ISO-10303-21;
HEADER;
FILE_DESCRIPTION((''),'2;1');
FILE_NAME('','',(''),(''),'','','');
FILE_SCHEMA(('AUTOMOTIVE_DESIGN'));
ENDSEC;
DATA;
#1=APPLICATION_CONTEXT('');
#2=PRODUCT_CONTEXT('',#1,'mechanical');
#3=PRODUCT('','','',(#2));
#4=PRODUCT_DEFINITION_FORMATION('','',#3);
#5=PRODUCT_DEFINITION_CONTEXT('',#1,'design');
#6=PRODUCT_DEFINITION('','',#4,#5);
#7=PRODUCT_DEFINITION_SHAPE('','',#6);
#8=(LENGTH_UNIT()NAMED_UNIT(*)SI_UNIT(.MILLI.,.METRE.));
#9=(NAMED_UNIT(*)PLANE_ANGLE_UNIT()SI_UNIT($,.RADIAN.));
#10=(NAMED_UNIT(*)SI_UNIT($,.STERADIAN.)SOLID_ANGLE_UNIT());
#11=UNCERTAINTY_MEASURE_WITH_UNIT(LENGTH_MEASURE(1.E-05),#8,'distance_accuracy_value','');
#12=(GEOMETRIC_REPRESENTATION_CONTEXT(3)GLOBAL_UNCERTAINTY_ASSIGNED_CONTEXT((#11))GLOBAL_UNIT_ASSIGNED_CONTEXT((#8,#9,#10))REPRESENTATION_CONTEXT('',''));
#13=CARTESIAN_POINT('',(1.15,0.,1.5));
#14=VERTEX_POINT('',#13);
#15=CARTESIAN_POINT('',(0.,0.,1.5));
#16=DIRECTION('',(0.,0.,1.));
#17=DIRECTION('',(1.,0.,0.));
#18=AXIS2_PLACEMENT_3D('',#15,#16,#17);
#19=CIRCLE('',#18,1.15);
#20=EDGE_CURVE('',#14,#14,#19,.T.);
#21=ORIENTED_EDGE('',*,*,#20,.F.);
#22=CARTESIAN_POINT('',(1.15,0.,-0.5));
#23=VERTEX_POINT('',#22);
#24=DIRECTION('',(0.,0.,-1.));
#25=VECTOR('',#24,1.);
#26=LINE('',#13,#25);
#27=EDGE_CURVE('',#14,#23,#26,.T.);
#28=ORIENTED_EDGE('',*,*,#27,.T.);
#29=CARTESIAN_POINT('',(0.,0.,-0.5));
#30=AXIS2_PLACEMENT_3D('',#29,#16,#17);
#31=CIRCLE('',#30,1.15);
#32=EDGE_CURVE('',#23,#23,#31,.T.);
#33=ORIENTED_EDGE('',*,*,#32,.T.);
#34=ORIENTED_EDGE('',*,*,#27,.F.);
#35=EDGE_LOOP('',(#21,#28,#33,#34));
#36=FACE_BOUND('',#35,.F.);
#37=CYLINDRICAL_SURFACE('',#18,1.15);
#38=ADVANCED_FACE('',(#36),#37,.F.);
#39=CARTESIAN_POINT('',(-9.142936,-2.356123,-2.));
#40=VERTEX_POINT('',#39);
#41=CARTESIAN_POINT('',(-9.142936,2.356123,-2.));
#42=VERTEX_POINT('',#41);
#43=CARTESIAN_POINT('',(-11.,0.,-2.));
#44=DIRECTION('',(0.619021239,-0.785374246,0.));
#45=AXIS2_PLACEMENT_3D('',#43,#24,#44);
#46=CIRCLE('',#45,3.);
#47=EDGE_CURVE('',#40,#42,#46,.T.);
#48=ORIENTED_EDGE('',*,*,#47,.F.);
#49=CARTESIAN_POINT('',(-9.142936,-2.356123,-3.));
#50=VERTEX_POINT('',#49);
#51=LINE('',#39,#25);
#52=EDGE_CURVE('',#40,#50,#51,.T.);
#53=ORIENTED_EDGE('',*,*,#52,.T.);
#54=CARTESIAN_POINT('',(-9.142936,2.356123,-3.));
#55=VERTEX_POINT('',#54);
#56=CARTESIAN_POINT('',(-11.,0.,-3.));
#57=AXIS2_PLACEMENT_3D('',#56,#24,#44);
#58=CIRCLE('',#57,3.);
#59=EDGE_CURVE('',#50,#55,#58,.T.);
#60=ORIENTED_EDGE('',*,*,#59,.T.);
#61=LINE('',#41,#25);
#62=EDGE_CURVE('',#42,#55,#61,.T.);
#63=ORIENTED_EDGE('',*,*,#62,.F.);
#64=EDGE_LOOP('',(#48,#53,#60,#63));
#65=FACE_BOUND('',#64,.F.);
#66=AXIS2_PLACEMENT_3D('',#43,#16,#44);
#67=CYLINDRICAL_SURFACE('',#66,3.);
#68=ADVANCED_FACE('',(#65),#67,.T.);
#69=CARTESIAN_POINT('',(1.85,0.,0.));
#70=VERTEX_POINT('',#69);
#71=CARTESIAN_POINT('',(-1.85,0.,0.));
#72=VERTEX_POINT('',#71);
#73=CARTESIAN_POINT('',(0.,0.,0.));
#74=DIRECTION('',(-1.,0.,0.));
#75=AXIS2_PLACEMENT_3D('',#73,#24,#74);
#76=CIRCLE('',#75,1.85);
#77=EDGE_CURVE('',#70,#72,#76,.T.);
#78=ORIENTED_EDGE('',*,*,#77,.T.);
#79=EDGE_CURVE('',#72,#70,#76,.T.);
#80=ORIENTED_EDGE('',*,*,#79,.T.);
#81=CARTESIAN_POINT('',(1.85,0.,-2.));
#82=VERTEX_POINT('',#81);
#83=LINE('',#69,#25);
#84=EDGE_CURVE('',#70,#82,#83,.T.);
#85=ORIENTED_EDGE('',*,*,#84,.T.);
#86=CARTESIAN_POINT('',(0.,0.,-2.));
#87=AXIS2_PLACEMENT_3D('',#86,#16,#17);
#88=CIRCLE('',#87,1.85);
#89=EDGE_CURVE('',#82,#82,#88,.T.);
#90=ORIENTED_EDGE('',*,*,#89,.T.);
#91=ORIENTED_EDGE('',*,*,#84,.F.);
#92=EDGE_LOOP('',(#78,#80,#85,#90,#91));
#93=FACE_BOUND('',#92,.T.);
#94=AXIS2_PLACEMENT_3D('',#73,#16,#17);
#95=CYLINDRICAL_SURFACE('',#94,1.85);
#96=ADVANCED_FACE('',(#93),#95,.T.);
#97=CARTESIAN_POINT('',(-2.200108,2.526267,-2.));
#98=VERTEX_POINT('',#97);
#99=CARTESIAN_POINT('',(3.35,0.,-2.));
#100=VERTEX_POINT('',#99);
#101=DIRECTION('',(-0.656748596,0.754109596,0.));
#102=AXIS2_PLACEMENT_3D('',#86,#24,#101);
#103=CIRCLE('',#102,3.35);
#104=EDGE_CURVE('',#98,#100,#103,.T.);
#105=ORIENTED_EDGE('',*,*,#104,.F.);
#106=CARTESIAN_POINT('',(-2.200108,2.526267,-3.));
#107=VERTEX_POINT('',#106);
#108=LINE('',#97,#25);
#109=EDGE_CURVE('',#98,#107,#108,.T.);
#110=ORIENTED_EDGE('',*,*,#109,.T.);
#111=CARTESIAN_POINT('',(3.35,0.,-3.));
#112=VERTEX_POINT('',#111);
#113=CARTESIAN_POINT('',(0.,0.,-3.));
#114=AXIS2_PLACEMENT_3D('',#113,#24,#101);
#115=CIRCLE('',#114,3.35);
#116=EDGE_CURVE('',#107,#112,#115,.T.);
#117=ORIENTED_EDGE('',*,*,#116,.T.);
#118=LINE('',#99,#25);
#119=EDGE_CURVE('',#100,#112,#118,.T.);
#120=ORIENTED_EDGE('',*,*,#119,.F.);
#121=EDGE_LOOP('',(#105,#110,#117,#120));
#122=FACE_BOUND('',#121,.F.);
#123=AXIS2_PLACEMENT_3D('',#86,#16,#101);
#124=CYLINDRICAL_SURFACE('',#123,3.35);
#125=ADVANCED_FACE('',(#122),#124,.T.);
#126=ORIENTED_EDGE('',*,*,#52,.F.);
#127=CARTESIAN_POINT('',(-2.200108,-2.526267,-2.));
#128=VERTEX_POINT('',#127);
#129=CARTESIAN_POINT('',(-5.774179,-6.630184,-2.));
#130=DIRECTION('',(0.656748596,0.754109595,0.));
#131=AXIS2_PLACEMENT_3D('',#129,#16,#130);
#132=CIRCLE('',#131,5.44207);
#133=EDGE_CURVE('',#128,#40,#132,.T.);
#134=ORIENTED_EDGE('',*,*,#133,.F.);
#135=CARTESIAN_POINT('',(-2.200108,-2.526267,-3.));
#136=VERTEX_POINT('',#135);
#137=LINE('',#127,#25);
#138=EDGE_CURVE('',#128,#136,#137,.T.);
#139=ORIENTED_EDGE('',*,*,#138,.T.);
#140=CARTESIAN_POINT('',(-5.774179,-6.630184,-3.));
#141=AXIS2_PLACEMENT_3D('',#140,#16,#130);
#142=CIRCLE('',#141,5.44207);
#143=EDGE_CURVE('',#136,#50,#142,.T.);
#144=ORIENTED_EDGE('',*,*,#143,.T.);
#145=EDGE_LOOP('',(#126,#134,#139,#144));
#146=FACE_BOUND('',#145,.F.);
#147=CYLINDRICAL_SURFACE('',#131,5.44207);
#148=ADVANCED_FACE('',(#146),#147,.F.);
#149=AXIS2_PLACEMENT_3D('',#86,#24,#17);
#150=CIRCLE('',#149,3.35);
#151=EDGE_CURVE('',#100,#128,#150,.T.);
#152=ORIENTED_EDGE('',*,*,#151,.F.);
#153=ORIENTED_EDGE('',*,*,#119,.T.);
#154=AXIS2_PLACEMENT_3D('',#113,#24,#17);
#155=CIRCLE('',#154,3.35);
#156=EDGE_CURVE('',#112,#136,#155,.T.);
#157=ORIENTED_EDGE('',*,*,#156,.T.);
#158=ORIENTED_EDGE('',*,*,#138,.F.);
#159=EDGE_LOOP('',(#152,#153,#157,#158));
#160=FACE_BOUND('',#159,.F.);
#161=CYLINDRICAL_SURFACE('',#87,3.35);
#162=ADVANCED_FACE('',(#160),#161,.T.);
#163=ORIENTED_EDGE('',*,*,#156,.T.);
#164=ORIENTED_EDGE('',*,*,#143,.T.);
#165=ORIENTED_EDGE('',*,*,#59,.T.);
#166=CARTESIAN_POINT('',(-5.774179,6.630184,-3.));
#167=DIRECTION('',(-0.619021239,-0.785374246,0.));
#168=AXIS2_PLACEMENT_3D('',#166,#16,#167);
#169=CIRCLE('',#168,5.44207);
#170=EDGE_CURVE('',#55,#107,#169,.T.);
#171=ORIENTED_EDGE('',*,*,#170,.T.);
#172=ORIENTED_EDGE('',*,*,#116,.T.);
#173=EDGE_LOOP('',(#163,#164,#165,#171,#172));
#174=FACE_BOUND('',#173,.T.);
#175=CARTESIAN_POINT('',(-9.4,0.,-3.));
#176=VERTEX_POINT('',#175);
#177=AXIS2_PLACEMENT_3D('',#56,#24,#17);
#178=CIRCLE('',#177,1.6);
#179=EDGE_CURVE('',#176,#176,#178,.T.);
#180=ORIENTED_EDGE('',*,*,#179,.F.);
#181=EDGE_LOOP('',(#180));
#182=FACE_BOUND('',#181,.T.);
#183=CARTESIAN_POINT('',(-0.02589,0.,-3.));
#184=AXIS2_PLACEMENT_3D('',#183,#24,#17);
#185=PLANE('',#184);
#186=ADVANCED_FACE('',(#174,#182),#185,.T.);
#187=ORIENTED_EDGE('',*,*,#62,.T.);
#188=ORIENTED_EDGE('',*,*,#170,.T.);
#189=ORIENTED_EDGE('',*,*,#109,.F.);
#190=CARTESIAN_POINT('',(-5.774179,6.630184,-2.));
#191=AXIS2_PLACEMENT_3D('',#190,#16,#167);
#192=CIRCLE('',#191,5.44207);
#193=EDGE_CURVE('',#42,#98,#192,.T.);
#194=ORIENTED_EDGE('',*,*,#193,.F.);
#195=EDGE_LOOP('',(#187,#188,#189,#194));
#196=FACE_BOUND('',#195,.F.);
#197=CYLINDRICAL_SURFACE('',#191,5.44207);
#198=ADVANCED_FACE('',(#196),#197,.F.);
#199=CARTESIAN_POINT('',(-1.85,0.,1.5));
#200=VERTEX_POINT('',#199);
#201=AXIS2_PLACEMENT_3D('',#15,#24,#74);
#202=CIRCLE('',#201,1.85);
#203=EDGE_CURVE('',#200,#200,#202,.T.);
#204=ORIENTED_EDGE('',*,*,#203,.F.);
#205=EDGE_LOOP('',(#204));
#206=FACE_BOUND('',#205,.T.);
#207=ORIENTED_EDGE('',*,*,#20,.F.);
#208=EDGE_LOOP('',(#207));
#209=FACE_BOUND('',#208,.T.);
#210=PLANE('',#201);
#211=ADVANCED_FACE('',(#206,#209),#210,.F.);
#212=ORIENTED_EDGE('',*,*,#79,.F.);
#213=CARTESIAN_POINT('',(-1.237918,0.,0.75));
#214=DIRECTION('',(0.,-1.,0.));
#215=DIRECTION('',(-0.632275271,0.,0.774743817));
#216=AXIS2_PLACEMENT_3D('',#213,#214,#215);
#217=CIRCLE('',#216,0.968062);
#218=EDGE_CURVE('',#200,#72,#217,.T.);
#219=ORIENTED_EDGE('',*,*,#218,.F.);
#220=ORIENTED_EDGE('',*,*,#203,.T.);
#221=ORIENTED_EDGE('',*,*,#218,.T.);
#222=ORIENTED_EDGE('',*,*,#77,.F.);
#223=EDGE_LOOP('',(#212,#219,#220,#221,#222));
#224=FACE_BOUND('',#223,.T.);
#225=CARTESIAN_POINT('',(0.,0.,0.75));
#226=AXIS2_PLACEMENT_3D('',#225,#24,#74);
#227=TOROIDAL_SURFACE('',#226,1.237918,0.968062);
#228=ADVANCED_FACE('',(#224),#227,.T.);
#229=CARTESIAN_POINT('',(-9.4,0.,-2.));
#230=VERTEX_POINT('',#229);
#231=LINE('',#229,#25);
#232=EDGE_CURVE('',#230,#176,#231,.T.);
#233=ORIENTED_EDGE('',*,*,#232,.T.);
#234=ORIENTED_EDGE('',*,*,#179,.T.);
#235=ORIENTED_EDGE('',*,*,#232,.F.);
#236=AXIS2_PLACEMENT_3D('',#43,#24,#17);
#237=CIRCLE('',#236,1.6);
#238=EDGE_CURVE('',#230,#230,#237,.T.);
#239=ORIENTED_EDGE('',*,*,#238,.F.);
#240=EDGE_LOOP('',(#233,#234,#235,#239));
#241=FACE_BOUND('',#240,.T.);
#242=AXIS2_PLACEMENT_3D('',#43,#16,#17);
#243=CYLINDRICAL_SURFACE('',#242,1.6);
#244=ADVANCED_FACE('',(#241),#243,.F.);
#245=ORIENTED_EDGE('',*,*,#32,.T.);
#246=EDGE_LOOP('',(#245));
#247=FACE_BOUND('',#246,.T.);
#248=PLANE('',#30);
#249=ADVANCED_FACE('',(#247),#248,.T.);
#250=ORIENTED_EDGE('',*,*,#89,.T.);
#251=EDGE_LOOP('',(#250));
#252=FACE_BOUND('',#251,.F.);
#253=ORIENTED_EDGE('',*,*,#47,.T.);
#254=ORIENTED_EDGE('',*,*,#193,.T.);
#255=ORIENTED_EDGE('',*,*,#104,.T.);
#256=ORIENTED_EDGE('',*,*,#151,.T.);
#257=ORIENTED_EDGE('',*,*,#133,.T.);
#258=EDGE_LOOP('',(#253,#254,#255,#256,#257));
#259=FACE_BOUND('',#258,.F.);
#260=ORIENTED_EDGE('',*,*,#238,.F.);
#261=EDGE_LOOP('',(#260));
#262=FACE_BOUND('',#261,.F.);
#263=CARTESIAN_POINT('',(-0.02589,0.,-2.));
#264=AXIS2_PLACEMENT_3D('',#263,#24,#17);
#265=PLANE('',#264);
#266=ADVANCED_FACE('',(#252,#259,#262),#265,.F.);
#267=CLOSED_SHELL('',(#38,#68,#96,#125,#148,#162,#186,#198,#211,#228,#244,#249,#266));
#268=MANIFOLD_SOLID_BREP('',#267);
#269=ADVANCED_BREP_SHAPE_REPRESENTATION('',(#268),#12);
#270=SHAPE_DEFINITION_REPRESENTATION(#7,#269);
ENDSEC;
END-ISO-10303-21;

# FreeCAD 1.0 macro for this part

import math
import FreeCAD as App
import Part
import Sketcher

doc = App.newDocument("Part")
body = doc.addObject("PartDesign::Body", "Body")

# Sketch on XZ plane
sketch1 = body.newObject("Sketcher::SketchObject", "Sketch")
sketch1.AttachmentSupport = (doc.getObject("XZ_Plane"), [""])
sketch1.MapMode = "FlatFace"
sketch1.addGeometry([
    Part.LineSegment(App.Vector(0, 0, 0), App.Vector(0, 1.5, 0)),
    Part.LineSegment(App.Vector(0, 1.5, 0), App.Vector(-1.9, 1.5, 0)),
    Part.ArcOfCircle(Part.Circle(App.Vector(-1.2, 0.8, 0), App.Vector(0, 0, 1), 1), math.radians(129), math.radians(231)),
    Part.LineSegment(App.Vector(-1.9, 0, 0), App.Vector(0, 0, 0)),
], False)
sketch1.addConstraint([
    Sketcher.Constraint("Coincident", 0, 2, 1, 1),
    Sketcher.Constraint("Coincident", 1, 2, 2, 1),
    Sketcher.Constraint("Coincident", 2, 2, 3, 1),
    Sketcher.Constraint("Coincident", 3, 2, 0, 1),
    Sketcher.Constraint("Vertical", 0),
    Sketcher.Constraint("Horizontal", 1),
    Sketcher.Constraint("Horizontal", 3),
    Sketcher.Constraint("Coincident", 3, 2, -1, 1),
    Sketcher.Constraint("Vertical", 1, 2, 2, 2),
    Sketcher.Constraint("DistanceY", 0, 1, 0, 2, 1.5),
    Sketcher.Constraint("DistanceX", 1, 2, 1, 1, 1.85),
    Sketcher.Constraint("Radius", 2, 0.968062),
])
revolution = body.newObject("PartDesign::Revolution", "Revolution")
revolution.Profile = sketch1
revolution.ReferenceAxis = (sketch1, ["V_Axis"])
revolution.Angle = 360

# Sketch on XY plane
sketch2 = body.newObject("Sketcher::SketchObject", "Sketch001")
sketch2.AttachmentSupport = (doc.getObject("XY_Plane"), [""])
sketch2.MapMode = "FlatFace"
sketch2.addGeometry(Part.Circle(App.Vector(0, 0, 0), App.Vector(0, 0, 1), 1.9), False)
sketch2.addConstraint([
    Sketcher.Constraint("Coincident", 0, 3, -1, 1),
    Sketcher.Constraint("Diameter", 0, 3.7),
])
pad1 = body.newObject("PartDesign::Pad", "Pad")
pad1.Profile = sketch2
pad1.Length = 2
pad1.Reversed = True

# Sketch on XY plane
sketch3 = body.newObject("Sketcher::SketchObject", "Sketch002")
sketch3.AttachmentSupport = (doc.getObject("XY_Plane"), [""])
sketch3.MapMode = "FlatFace"
sketch3.AttachmentOffset = App.Placement(App.Vector(0, 0, -2), App.Rotation())
sketch3.addGeometry([
    Part.ArcOfCircle(Part.Circle(App.Vector(0, 0, 0), App.Vector(0, 0, 1), 3.4), math.radians(0), math.radians(131)),  # 0
    Part.ArcOfCircle(Part.Circle(App.Vector(0, 0, 0), App.Vector(0, 0, 1), 3.4), math.radians(-131), math.radians(0)),  # 1
    Part.ArcOfCircle(Part.Circle(App.Vector(-5.8, -6.6, 0), App.Vector(0, 0, 1), 5.4), math.radians(49), math.radians(128)),  # 2
    Part.ArcOfCircle(Part.Circle(App.Vector(-11, 0, 0), App.Vector(0, 0, 1), 3), math.radians(52), math.radians(308)),  # 3
    Part.ArcOfCircle(Part.Circle(App.Vector(-5.8, 6.6, 0), App.Vector(0, 0, 1), 5.4), math.radians(-128), math.radians(-49)),  # 4
    Part.Circle(App.Vector(-11, 0, 0), App.Vector(0, 0, 1), 1.6),  # 5
], False)
sketch3.addConstraint([
    Sketcher.Constraint("Tangent", 0, 1, 1, 2),
    Sketcher.Constraint("Tangent", 1, 1, 2, 1),
    Sketcher.Constraint("Tangent", 2, 2, 3, 2),
    Sketcher.Constraint("Tangent", 3, 1, 4, 1),
    Sketcher.Constraint("Tangent", 4, 2, 0, 2),
    Sketcher.Constraint("Coincident", 0, 3, -1, 1),
    Sketcher.Constraint("Coincident", 5, 3, 3, 3),
    Sketcher.Constraint("Equal", 0, 1),
    Sketcher.Constraint("Equal", 2, 4),
    Sketcher.Constraint("PointOnObject", 3, 3, -1),
    Sketcher.Constraint("PointOnObject", 0, 1, -1),
    Sketcher.Constraint("Radius", 3, 3.0),
    Sketcher.Constraint("Diameter", 5, 3.2),
    Sketcher.Constraint("Radius", 0, 3.35),
    Sketcher.Constraint("DistanceX", 3, 3, -1, 1, 11.0),
    Sketcher.Constraint("Radius", 2, 5.44207),
])
pad2 = body.newObject("PartDesign::Pad", "Pad001")
pad2.Profile = sketch3
pad2.Length = 1
pad2.Reversed = True

# Sketch on XY plane
sketch4 = body.newObject("Sketcher::SketchObject", "Sketch003")
sketch4.AttachmentSupport = (doc.getObject("XY_Plane"), [""])
sketch4.MapMode = "FlatFace"
sketch4.AttachmentOffset = App.Placement(App.Vector(0, 0, 1.5), App.Rotation())
sketch4.addGeometry(Part.Circle(App.Vector(0, 0, 0), App.Vector(0, 0, 1), 1.1), False)
sketch4.addConstraint([
    Sketcher.Constraint("Coincident", 0, 3, -1, 1),
    Sketcher.Constraint("Diameter", 0, 2.3),
])
pocket1 = body.newObject("PartDesign::Pocket", "Pocket")
pocket1.Profile = sketch4
pocket1.Length = 2

doc.recompute()
